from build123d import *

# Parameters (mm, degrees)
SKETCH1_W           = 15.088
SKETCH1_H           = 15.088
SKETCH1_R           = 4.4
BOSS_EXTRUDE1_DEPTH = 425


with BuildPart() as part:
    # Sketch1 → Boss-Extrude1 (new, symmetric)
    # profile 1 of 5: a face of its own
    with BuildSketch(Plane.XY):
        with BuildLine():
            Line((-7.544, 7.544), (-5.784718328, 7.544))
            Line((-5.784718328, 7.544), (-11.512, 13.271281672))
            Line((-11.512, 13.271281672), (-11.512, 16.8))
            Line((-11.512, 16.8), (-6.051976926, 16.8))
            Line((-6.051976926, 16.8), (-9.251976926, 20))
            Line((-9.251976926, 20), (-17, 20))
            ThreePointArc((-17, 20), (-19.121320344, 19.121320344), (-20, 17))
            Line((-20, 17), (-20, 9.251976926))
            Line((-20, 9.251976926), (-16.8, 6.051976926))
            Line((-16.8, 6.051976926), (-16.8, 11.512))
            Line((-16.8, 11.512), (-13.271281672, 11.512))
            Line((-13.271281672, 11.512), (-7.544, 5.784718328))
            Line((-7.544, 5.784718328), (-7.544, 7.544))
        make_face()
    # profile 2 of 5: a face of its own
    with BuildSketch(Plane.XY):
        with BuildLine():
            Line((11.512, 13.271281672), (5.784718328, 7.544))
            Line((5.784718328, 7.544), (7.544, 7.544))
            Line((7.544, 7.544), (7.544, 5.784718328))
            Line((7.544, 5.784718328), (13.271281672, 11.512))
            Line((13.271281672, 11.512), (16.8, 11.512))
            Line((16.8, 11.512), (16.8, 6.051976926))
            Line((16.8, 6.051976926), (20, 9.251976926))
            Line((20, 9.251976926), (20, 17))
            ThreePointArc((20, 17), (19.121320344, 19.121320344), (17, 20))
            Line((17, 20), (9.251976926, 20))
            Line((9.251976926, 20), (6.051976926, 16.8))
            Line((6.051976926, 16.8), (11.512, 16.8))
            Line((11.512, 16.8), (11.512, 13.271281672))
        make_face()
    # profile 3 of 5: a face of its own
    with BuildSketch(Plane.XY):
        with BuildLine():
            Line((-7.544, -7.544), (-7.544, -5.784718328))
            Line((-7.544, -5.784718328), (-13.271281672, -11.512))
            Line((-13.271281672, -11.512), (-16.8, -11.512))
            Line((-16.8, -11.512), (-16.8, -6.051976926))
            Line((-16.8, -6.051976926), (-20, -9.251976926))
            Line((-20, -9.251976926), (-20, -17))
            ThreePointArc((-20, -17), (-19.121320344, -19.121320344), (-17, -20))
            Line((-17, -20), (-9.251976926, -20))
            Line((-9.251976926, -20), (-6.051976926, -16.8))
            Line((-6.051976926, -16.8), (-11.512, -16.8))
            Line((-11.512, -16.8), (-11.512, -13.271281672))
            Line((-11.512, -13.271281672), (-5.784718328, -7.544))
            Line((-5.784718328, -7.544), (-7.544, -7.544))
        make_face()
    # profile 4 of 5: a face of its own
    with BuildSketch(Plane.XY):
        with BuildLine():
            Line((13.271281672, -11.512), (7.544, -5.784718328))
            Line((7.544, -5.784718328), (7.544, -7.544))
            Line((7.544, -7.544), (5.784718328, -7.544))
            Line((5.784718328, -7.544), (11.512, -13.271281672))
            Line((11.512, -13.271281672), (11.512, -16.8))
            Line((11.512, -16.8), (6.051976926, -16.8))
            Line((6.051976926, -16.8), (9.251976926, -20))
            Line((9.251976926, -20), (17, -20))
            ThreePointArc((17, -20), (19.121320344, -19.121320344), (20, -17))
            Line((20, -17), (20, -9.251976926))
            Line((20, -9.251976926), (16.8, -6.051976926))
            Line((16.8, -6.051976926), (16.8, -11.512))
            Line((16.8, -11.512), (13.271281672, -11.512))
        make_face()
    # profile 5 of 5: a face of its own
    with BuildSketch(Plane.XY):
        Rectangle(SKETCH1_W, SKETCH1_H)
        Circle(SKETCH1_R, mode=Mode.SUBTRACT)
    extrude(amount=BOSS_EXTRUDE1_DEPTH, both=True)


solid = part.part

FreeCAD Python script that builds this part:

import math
import FreeCAD as App
import Part
import Sketcher
from FreeCAD import Vector
Q = App.Units.Quantity

doc = App.newDocument("Part")
params = doc.addObject("Spreadsheet::Sheet", "Params")
for row, (alias, value) in enumerate([
    ("sketch1_radius", "3 mm"),
    ("sketch1_diameter", "8.8 mm"),
    ("pad1_length", "850 mm"),
], start=1):
    params.set(f"A{row}", alias)
    params.set(f"B{row}", "=" + value)
    params.setAlias(f"B{row}", alias)

body = doc.addObject("PartDesign::Body", "Body")

sketch1 = body.newObject("Sketcher::SketchObject", "Sketch")
sketch1.AttachmentSupport = (doc.getObject("XY_Plane"), [""])
sketch1.MapMode = "FlatFace"
sketch1.addGeometry(Part.LineSegment(Vector(-5.8, 7.5, 0), Vector(-11.5, 13.3, 0)), False)
sketch1.addGeometry(Part.LineSegment(Vector(-11.5, 13.3, 0), Vector(-11.5, 16.8, 0)), False)
sketch1.addGeometry(Part.LineSegment(Vector(-11.5, 16.8, 0), Vector(-6.1, 16.8, 0)), False)
sketch1.addGeometry(Part.LineSegment(Vector(-6.1, 16.8, 0), Vector(-9.3, 20, 0)), False)
sketch1.addGeometry(Part.LineSegment(Vector(-9.3, 20, 0), Vector(-17, 20, 0)), False)
sketch1.addGeometry(Part.ArcOfCircle(Part.Circle(Vector(-17, 17, 0), Vector(0, 0, 1), 3), math.radians(90), math.radians(180)), False)
sketch1.addGeometry(Part.LineSegment(Vector(-20, 17, 0), Vector(-20, 9.3, 0)), False)
sketch1.addGeometry(Part.LineSegment(Vector(-20, 9.3, 0), Vector(-16.8, 6.1, 0)), False)
sketch1.addGeometry(Part.LineSegment(Vector(-16.8, 6.1, 0), Vector(-16.8, 11.5, 0)), False)
sketch1.addGeometry(Part.LineSegment(Vector(-16.8, 11.5, 0), Vector(-13.3, 11.5, 0)), False)
sketch1.addGeometry(Part.LineSegment(Vector(-13.3, 11.5, 0), Vector(-7.5, 5.8, 0)), False)
sketch1.addGeometry(Part.LineSegment(Vector(-7.5, 5.8, 0), Vector(-7.5, -5.8, 0)), False)
sketch1.addGeometry(Part.LineSegment(Vector(-7.5, -5.8, 0), Vector(-13.3, -11.5, 0)), False)
sketch1.addGeometry(Part.LineSegment(Vector(-13.3, -11.5, 0), Vector(-16.8, -11.5, 0)), False)
sketch1.addGeometry(Part.LineSegment(Vector(-16.8, -11.5, 0), Vector(-16.8, -6.1, 0)), False)
sketch1.addGeometry(Part.LineSegment(Vector(-16.8, -6.1, 0), Vector(-20, -9.3, 0)), False)
sketch1.addGeometry(Part.LineSegment(Vector(-20, -9.3, 0), Vector(-20, -17, 0)), False)
sketch1.addGeometry(Part.ArcOfCircle(Part.Circle(Vector(-17, -17, 0), Vector(0, 0, 1), 3), math.radians(180), math.radians(270)), False)
sketch1.addGeometry(Part.LineSegment(Vector(-17, -20, 0), Vector(-9.3, -20, 0)), False)
sketch1.addGeometry(Part.LineSegment(Vector(-9.3, -20, 0), Vector(-6.1, -16.8, 0)), False)
sketch1.addGeometry(Part.LineSegment(Vector(-6.1, -16.8, 0), Vector(-11.5, -16.8, 0)), False)
sketch1.addGeometry(Part.LineSegment(Vector(-11.5, -16.8, 0), Vector(-11.5, -13.3, 0)), False)
sketch1.addGeometry(Part.LineSegment(Vector(-11.5, -13.3, 0), Vector(-5.8, -7.5, 0)), False)
sketch1.addGeometry(Part.LineSegment(Vector(-5.8, -7.5, 0), Vector(5.8, -7.5, 0)), False)
sketch1.addGeometry(Part.LineSegment(Vector(5.8, -7.5, 0), Vector(11.5, -13.3, 0)), False)
sketch1.addGeometry(Part.LineSegment(Vector(11.5, -13.3, 0), Vector(11.5, -16.8, 0)), False)
sketch1.addGeometry(Part.LineSegment(Vector(11.5, -16.8, 0), Vector(6.1, -16.8, 0)), False)
sketch1.addGeometry(Part.LineSegment(Vector(6.1, -16.8, 0), Vector(9.3, -20, 0)), False)
sketch1.addGeometry(Part.LineSegment(Vector(9.3, -20, 0), Vector(17, -20, 0)), False)
sketch1.addGeometry(Part.ArcOfCircle(Part.Circle(Vector(17, -17, 0), Vector(0, 0, 1), 3), math.radians(-90), math.radians(0)), False)
sketch1.addGeometry(Part.LineSegment(Vector(20, -17, 0), Vector(20, -9.3, 0)), False)
sketch1.addGeometry(Part.LineSegment(Vector(20, -9.3, 0), Vector(16.8, -6.1, 0)), False)
sketch1.addGeometry(Part.LineSegment(Vector(16.8, -6.1, 0), Vector(16.8, -11.5, 0)), False)
sketch1.addGeometry(Part.LineSegment(Vector(16.8, -11.5, 0), Vector(13.3, -11.5, 0)), False)
sketch1.addGeometry(Part.LineSegment(Vector(13.3, -11.5, 0), Vector(7.5, -5.8, 0)), False)
sketch1.addGeometry(Part.LineSegment(Vector(7.5, -5.8, 0), Vector(7.5, 5.8, 0)), False)
sketch1.addGeometry(Part.LineSegment(Vector(7.5, 5.8, 0), Vector(13.3, 11.5, 0)), False)
sketch1.addGeometry(Part.LineSegment(Vector(13.3, 11.5, 0), Vector(16.8, 11.5, 0)), False)
sketch1.addGeometry(Part.LineSegment(Vector(16.8, 11.5, 0), Vector(16.8, 6.1, 0)), False)
sketch1.addGeometry(Part.LineSegment(Vector(16.8, 6.1, 0), Vector(20, 9.3, 0)), False)
sketch1.addGeometry(Part.LineSegment(Vector(20, 9.3, 0), Vector(20, 17, 0)), False)
sketch1.addGeometry(Part.ArcOfCircle(Part.Circle(Vector(17, 17, 0), Vector(0, 0, 1), 3), math.radians(0), math.radians(90)), False)
sketch1.addGeometry(Part.LineSegment(Vector(17, 20, 0), Vector(9.3, 20, 0)), False)
sketch1.addGeometry(Part.LineSegment(Vector(9.3, 20, 0), Vector(6.1, 16.8, 0)), False)
sketch1.addGeometry(Part.LineSegment(Vector(6.1, 16.8, 0), Vector(11.5, 16.8, 0)), False)
sketch1.addGeometry(Part.LineSegment(Vector(11.5, 16.8, 0), Vector(11.5, 13.3, 0)), False)
sketch1.addGeometry(Part.LineSegment(Vector(11.5, 13.3, 0), Vector(5.8, 7.5, 0)), False)
sketch1.addGeometry(Part.LineSegment(Vector(5.8, 7.5, 0), Vector(-5.8, 7.5, 0)), False)
sketch1.addGeometry(Part.Circle(Vector(0, 0, 0), Vector(0, 0, 1), 4.4), False)
sketch1.addConstraint(Sketcher.Constraint("Coincident", 0, 2, 1, 1))
sketch1.addConstraint(Sketcher.Constraint("Coincident", 1, 2, 2, 1))
sketch1.addConstraint(Sketcher.Constraint("Coincident", 2, 2, 3, 1))
sketch1.addConstraint(Sketcher.Constraint("Coincident", 3, 2, 4, 1))
sketch1.addConstraint(Sketcher.Constraint("Tangent", 4, 2, 5, 1))
sketch1.addConstraint(Sketcher.Constraint("Tangent", 5, 2, 6, 1))
sketch1.addConstraint(Sketcher.Constraint("Coincident", 6, 2, 7, 1))
sketch1.addConstraint(Sketcher.Constraint("Coincident", 7, 2, 8, 1))
sketch1.addConstraint(Sketcher.Constraint("Coincident", 8, 2, 9, 1))
sketch1.addConstraint(Sketcher.Constraint("Coincident", 9, 2, 10, 1))
sketch1.addConstraint(Sketcher.Constraint("Coincident", 10, 2, 11, 1))
sketch1.addConstraint(Sketcher.Constraint("Coincident", 11, 2, 12, 1))
sketch1.addConstraint(Sketcher.Constraint("Coincident", 12, 2, 13, 1))
sketch1.addConstraint(Sketcher.Constraint("Coincident", 13, 2, 14, 1))
sketch1.addConstraint(Sketcher.Constraint("Coincident", 14, 2, 15, 1))
sketch1.addConstraint(Sketcher.Constraint("Coincident", 15, 2, 16, 1))
sketch1.addConstraint(Sketcher.Constraint("Tangent", 16, 2, 17, 1))
sketch1.addConstraint(Sketcher.Constraint("Tangent", 17, 2, 18, 1))
sketch1.addConstraint(Sketcher.Constraint("Coincident", 18, 2, 19, 1))
sketch1.addConstraint(Sketcher.Constraint("Coincident", 19, 2, 20, 1))
sketch1.addConstraint(Sketcher.Constraint("Coincident", 20, 2, 21, 1))
sketch1.addConstraint(Sketcher.Constraint("Coincident", 21, 2, 22, 1))
sketch1.addConstraint(Sketcher.Constraint("Coincident", 22, 2, 23, 1))
sketch1.addConstraint(Sketcher.Constraint("Coincident", 23, 2, 24, 1))
sketch1.addConstraint(Sketcher.Constraint("Coincident", 24, 2, 25, 1))
sketch1.addConstraint(Sketcher.Constraint("Coincident", 25, 2, 26, 1))
sketch1.addConstraint(Sketcher.Constraint("Coincident", 26, 2, 27, 1))
sketch1.addConstraint(Sketcher.Constraint("Coincident", 27, 2, 28, 1))
sketch1.addConstraint(Sketcher.Constraint("Tangent", 28, 2, 29, 1))
sketch1.addConstraint(Sketcher.Constraint("Tangent", 29, 2, 30, 1))
sketch1.addConstraint(Sketcher.Constraint("Coincident", 30, 2, 31, 1))
sketch1.addConstraint(Sketcher.Constraint("Coincident", 31, 2, 32, 1))
sketch1.addConstraint(Sketcher.Constraint("Coincident", 32, 2, 33, 1))
sketch1.addConstraint(Sketcher.Constraint("Coincident", 33, 2, 34, 1))
sketch1.addConstraint(Sketcher.Constraint("Coincident", 34, 2, 35, 1))
sketch1.addConstraint(Sketcher.Constraint("Coincident", 35, 2, 36, 1))
sketch1.addConstraint(Sketcher.Constraint("Coincident", 36, 2, 37, 1))
sketch1.addConstraint(Sketcher.Constraint("Coincident", 37, 2, 38, 1))
sketch1.addConstraint(Sketcher.Constraint("Coincident", 38, 2, 39, 1))
sketch1.addConstraint(Sketcher.Constraint("Coincident", 39, 2, 40, 1))
sketch1.addConstraint(Sketcher.Constraint("Tangent", 40, 2, 41, 1))
sketch1.addConstraint(Sketcher.Constraint("Tangent", 41, 2, 42, 1))
sketch1.addConstraint(Sketcher.Constraint("Coincident", 42, 2, 43, 1))
sketch1.addConstraint(Sketcher.Constraint("Coincident", 43, 2, 44, 1))
sketch1.addConstraint(Sketcher.Constraint("Coincident", 44, 2, 45, 1))
sketch1.addConstraint(Sketcher.Constraint("Coincident", 45, 2, 46, 1))
sketch1.addConstraint(Sketcher.Constraint("Coincident", 46, 2, 47, 1))
sketch1.addConstraint(Sketcher.Constraint("Coincident", 47, 2, 0, 1))
sketch1.addConstraint(Sketcher.Constraint("Vertical", 1))
sketch1.addConstraint(Sketcher.Constraint("Horizontal", 2))
sketch1.addConstraint(Sketcher.Constraint("Horizontal", 4))
sketch1.addConstraint(Sketcher.Constraint("Vertical", 6))
sketch1.addConstraint(Sketcher.Constraint("Vertical", 8))
sketch1.addConstraint(Sketcher.Constraint("Horizontal", 9))
sketch1.addConstraint(Sketcher.Constraint("Vertical", 11))
sketch1.addConstraint(Sketcher.Constraint("Horizontal", 13))
sketch1.addConstraint(Sketcher.Constraint("Vertical", 14))
sketch1.addConstraint(Sketcher.Constraint("Vertical", 16))
sketch1.addConstraint(Sketcher.Constraint("Horizontal", 18))
sketch1.addConstraint(Sketcher.Constraint("Horizontal", 20))
sketch1.addConstraint(Sketcher.Constraint("Vertical", 21))
sketch1.addConstraint(Sketcher.Constraint("Horizontal", 23))
sketch1.addConstraint(Sketcher.Constraint("Vertical", 25))
sketch1.addConstraint(Sketcher.Constraint("Horizontal", 26))
sketch1.addConstraint(Sketcher.Constraint("Horizontal", 28))
sketch1.addConstraint(Sketcher.Constraint("Vertical", 30))
sketch1.addConstraint(Sketcher.Constraint("Vertical", 32))
sketch1.addConstraint(Sketcher.Constraint("Horizontal", 33))
sketch1.addConstraint(Sketcher.Constraint("Vertical", 35))
sketch1.addConstraint(Sketcher.Constraint("Horizontal", 37))
sketch1.addConstraint(Sketcher.Constraint("Vertical", 38))
sketch1.addConstraint(Sketcher.Constraint("Vertical", 40))
sketch1.addConstraint(Sketcher.Constraint("Horizontal", 42))
sketch1.addConstraint(Sketcher.Constraint("Horizontal", 44))
sketch1.addConstraint(Sketcher.Constraint("Vertical", 45))
sketch1.addConstraint(Sketcher.Constraint("Horizontal", 47))
sketch1.addConstraint(Sketcher.Constraint("Coincident", 48, 3, -1, 1))
sketch1.addConstraint(Sketcher.Constraint("Equal", 5, 17))
sketch1.addConstraint(Sketcher.Constraint("Equal", 17, 29))
sketch1.addConstraint(Sketcher.Constraint("Equal", 29, 41))
sketch1.addConstraint(Sketcher.Constraint("Symmetric", 5, 3, 29, 3, -1, 1))
sketch1.addConstraint(Sketcher.Constraint("Symmetric", 17, 3, 41, 3, -1, 1))
sketch1.addConstraint(Sketcher.Constraint("Symmetric", 0, 2, 24, 2, -1, 1))
sketch1.addConstraint(Sketcher.Constraint("Symmetric", 2, 2, 26, 2, -1, 1))
sketch1.addConstraint(Sketcher.Constraint("Symmetric", 7, 2, 31, 2, -1, 1))
sketch1.addConstraint(Sketcher.Constraint("Symmetric", 9, 2, 33, 2, -1, 1))
sketch1.addConstraint(Sketcher.Constraint("Symmetric", 10, 2, 34, 2, -1, 1))
sketch1.addConstraint(Sketcher.Constraint("Symmetric", 12, 2, 36, 2, -1, 1))
sketch1.addConstraint(Sketcher.Constraint("Symmetric", 14, 2, 38, 2, -1, 1))
sketch1.addConstraint(Sketcher.Constraint("Symmetric", 19, 2, 43, 2, -1, 1))
sketch1.addConstraint(Sketcher.Constraint("Symmetric", 21, 2, 45, 2, -1, 1))
sketch1.addConstraint(Sketcher.Constraint("Symmetric", 22, 2, 46, 2, -1, 1))
sketch1.addConstraint(Sketcher.Constraint("Symmetric", 17, 3, 29, 3, -2))
sketch1.addConstraint(Sketcher.Constraint("Symmetric", 21, 2, 24, 2, -2))
sketch1.addConstraint(Sketcher.Constraint("Symmetric", 19, 2, 26, 2, -2))
sketch1.addConstraint(Sketcher.Constraint("Symmetric", 14, 2, 31, 2, -2))
sketch1.addConstraint(Sketcher.Constraint("Symmetric", 12, 2, 33, 2, -2))
sketch1.addConstraint(Sketcher.Constraint("Parallel", 0, 3))
sketch1.addConstraint(Sketcher.Constraint("Parallel", 3, 7))
sketch1.addConstraint(Sketcher.Constraint("Parallel", 7, 10))
sketch1.addConstraint(Sketcher.Constraint("Perpendicular", 10, 12))
sketch1.addConstraint(Sketcher.Constraint("Parallel", 12, 15))
sketch1.addConstraint(Sketcher.Constraint("Parallel", 15, 19))
sketch1.addConstraint(Sketcher.Constraint("Parallel", 19, 22))
sketch1.addConstraint(Sketcher.Constraint("Perpendicular", 22, 24))
sketch1.addConstraint(Sketcher.Constraint("Parallel", 24, 27))
sketch1.addConstraint(Sketcher.Constraint("Parallel", 27, 31))
sketch1.addConstraint(Sketcher.Constraint("Perpendicular", 34, 36))
sketch1.addConstraint(Sketcher.Constraint("Parallel", 36, 39))
sketch1.addConstraint(Sketcher.Constraint("Parallel", 39, 43))
sketch1.addConstraint(Sketcher.Constraint("Horizontal", 15, 2, 30, 2))
sketch1.addConstraint(Sketcher.Constraint("Equal", 37, 1))
sketch1.addConstraint(Sketcher.Constraint("Equal", 42, 6))
sketch1.addConstraint(Sketcher.Constraint("Equal", 44, 8))
sketch1.addConstraint(Sketcher.Constraint("Equal", 47, 11))
sketch1.addConstraint(Sketcher.Constraint("Equal", 3, 7))
sketch1.addConstraint(Sketcher.Constraint("Equal", 0, 10))
sketch1.addConstraint(Sketcher.Constraint("Radius", 5, Q("3 mm")))
sketch1.addConstraint(Sketcher.Constraint("Diameter", 48, Q("8.8 mm")))
sketch1.addConstraint(Sketcher.Constraint("DistanceX", 5, 3, -1, 1, Q("17 mm")))
sketch1.addConstraint(Sketcher.Constraint("DistanceY", -1, 1, 1, 2, Q("16.8 mm")))
sketch1.addConstraint(Sketcher.Constraint("DistanceX", 0, 2, -1, 1, Q("11.512 mm")))
sketch1.addConstraint(Sketcher.Constraint("DistanceX", 10, 2, -1, 1, Q("7.544 mm")))
sketch1.addConstraint(Sketcher.Constraint("Distance", 0, Q("8.099599 mm")))
sketch1.addConstraint(Sketcher.Constraint("DistanceX", 2, 1, 2, 2, Q("5.460023 mm")))
sketch1.setExpression("Constraints[117]", "Params.sketch1_radius")
sketch1.setExpression("Constraints[118]", "Params.sketch1_diameter")
pad1 = body.newObject("PartDesign::Pad", "Pad")
pad1.Profile = sketch1
pad1.setExpression("Length", "Params.pad1_length")
pad1.Midplane = True

doc.recompute()
